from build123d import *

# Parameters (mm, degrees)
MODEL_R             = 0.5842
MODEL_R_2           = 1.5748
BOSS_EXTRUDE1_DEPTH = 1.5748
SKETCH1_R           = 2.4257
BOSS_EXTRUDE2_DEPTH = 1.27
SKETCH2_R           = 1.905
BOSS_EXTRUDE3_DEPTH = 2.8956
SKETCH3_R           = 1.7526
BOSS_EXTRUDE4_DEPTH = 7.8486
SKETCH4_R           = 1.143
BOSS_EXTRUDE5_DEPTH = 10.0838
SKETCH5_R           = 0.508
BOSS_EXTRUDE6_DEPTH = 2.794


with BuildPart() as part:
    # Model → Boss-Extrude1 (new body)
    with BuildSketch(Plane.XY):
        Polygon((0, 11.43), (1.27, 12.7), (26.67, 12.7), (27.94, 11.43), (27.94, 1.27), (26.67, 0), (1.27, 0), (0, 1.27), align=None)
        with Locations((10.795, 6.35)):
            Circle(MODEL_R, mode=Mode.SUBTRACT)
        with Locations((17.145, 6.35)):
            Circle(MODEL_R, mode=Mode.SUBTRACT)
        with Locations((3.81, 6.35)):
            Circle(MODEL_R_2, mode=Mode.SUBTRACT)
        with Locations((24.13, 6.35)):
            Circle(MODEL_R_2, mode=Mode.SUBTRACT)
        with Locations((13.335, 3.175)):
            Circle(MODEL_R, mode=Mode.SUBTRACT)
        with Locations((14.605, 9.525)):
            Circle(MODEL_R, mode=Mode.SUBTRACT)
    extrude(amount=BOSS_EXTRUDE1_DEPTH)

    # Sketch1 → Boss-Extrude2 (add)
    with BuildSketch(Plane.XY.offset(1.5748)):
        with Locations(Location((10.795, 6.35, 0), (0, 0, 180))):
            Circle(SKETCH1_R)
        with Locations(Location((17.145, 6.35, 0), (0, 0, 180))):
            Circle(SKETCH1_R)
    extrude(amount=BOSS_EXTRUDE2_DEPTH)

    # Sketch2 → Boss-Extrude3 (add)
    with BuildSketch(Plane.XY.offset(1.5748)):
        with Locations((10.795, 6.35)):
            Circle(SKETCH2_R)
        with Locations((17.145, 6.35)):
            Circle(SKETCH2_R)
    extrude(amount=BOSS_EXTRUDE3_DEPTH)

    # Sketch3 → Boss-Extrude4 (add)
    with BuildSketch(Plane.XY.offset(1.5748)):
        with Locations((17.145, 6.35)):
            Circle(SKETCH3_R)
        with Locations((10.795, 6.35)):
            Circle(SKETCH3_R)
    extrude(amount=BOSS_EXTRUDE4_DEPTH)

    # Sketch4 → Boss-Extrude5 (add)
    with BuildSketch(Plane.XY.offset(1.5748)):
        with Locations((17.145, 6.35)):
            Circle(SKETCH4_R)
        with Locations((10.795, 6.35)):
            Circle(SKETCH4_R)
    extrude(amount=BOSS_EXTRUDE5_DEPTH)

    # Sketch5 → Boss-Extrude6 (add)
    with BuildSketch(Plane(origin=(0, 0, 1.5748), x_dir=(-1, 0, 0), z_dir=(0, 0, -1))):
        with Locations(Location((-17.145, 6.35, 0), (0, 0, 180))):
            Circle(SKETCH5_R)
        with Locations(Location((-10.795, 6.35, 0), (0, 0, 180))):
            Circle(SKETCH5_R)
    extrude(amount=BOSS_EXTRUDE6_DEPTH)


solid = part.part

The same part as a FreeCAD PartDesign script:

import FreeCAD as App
import Part
import Sketcher
Q = App.Units.Quantity


def add_polygon(sketch, points):
    """Adds a closed chain of lines whose ends are joined by coincident constraints."""
    first, n = sketch.GeometryCount, len(points)
    for a, b in zip(points, points[1:] + points[:1]):
        sketch.addGeometry(Part.LineSegment(App.Vector(*a, 0), App.Vector(*b, 0)), False)
    for i in range(n):
        sketch.addConstraint(Sketcher.Constraint("Coincident", first + i, 2, first + (i + 1) % n, 1))

doc = App.newDocument("Part")
body = doc.addObject("PartDesign::Body", "Body")

# Sketch on XY plane
sketch1 = doc.addObject("Sketcher::SketchObject", "Sketch")
body.addObject(sketch1)
sketch1.AttachmentSupport = (doc.XY_Plane, [""])
sketch1.MapMode = "FlatFace"
add_polygon(sketch1, [(1.3, 12.7), (0, 11.4), (0, 1.3), (1.3, 0), (26.7, 0), (27.9, 1.3), (27.9, 11.4), (26.7, 12.7)])  # lines 0-7
sketch1.addGeometry(Part.Circle(App.Vector(24.1, 6.3, 0), App.Vector(0, 0, 1), 1.6), False)  # 8
sketch1.addGeometry(Part.Circle(App.Vector(17.1, 6.3, 0), App.Vector(0, 0, 1), 0.6), False)  # 9
sketch1.addGeometry(Part.Circle(App.Vector(13.3, 3.2, 0), App.Vector(0, 0, 1), 0.6), False)  # 10
sketch1.addGeometry(Part.Circle(App.Vector(10.8, 6.3, 0), App.Vector(0, 0, 1), 0.6), False)  # 11
sketch1.addGeometry(Part.Circle(App.Vector(3.8, 6.3, 0), App.Vector(0, 0, 1), 1.6), False)  # 12
sketch1.addGeometry(Part.Circle(App.Vector(14.6, 9.5, 0), App.Vector(0, 0, 1), 0.6), False)  # 13
sketch1.addConstraint(Sketcher.Constraint("Vertical", 1))
sketch1.addConstraint(Sketcher.Constraint("Horizontal", 3))
sketch1.addConstraint(Sketcher.Constraint("Vertical", 5))
sketch1.addConstraint(Sketcher.Constraint("Horizontal", 7))
sketch1.addConstraint(Sketcher.Constraint("Equal", 9, 10))
sketch1.addConstraint(Sketcher.Constraint("Equal", 10, 11))
sketch1.addConstraint(Sketcher.Constraint("Equal", 8, 12))
sketch1.addConstraint(Sketcher.Constraint("Equal", 11, 13))
sketch1.addConstraint(Sketcher.Constraint("PointOnObject", 0, 2, -2))
sketch1.addConstraint(Sketcher.Constraint("PointOnObject", 2, 2, -1))
sketch1.addConstraint(Sketcher.Constraint("Perpendicular", 0, 2))
sketch1.addConstraint(Sketcher.Constraint("Perpendicular", 2, 4))
sketch1.addConstraint(Sketcher.Constraint("Perpendicular", 4, 6))
sketch1.addConstraint(Sketcher.Constraint("Horizontal", 8, 3, 9, 3))
sketch1.addConstraint(Sketcher.Constraint("Horizontal", 9, 3, 11, 3))
sketch1.addConstraint(Sketcher.Constraint("Horizontal", 11, 3, 12, 3))
sketch1.addConstraint(Sketcher.Constraint("Horizontal", 1, 2, 4, 2))
sketch1.addConstraint(Sketcher.Constraint("Horizontal", 0, 2, 5, 2))
sketch1.addConstraint(Sketcher.Constraint("Vertical", 3, 2, 6, 2))
sketch1.addConstraint(Sketcher.Constraint("Vertical", 2, 2, 7, 2))
sketch1.addConstraint(Sketcher.Constraint("DistanceX", 3, 1, 3, 2, Q("1 in")))
sketch1.addConstraint(Sketcher.Constraint("Diameter", 8, Q("0.124 in")))
sketch1.addConstraint(Sketcher.Constraint("Diameter", 9, Q("0.046 in")))
sketch1.addConstraint(Sketcher.Constraint("DistanceY", 1, 2, 1, 1, Q("0.4 in")))
sketch1.addConstraint(Sketcher.Constraint("DistanceX", -1, 1, 4, 2, Q("1.1 in")))
sketch1.addConstraint(Sketcher.Constraint("DistanceX", 11, 3, 10, 3, Q("0.1 in")))
sketch1.addConstraint(Sketcher.Constraint("DistanceX", 12, 3, 8, 3, Q("0.8 in")))
sketch1.addConstraint(Sketcher.Constraint("DistanceX", 13, 3, 9, 3, Q("0.1 in")))
sketch1.addConstraint(Sketcher.Constraint("DistanceY", 12, 3, 0, 2, Q("0.2 in")))
sketch1.addConstraint(Sketcher.Constraint("DistanceX", 2, 2, 12, 3, Q("0.1 in")))
sketch1.addConstraint(Sketcher.Constraint("DistanceX", 10, 3, 9, 3, Q("0.15 in")))
sketch1.addConstraint(Sketcher.Constraint("DistanceY", 10, 3, 13, 3, Q("0.25 in")))
sketch1.addConstraint(Sketcher.Constraint("DistanceX", -1, 1, 9, 3, Q("0.675 in")))
sketch1.addConstraint(Sketcher.Constraint("DistanceY", -1, 1, 10, 3, Q("0.125 in")))
pad1 = doc.addObject("PartDesign::Pad", "Pad")
body.addObject(pad1)
pad1.Profile = sketch1
pad1.Length = Q("0.062 in")

# Sketch on XY plane
sketch2 = doc.addObject("Sketcher::SketchObject", "Sketch001")
body.addObject(sketch2)
sketch2.AttachmentSupport = (doc.XY_Plane, [""])
sketch2.MapMode = "FlatFace"
sketch2.AttachmentOffset = App.Placement(App.Vector(0, 0, 0.062 * 25.4), App.Rotation())
sketch2.addGeometry(Part.Circle(App.Vector(10.8, 6.3, 0), App.Vector(0, 0, 1), 2.4), False)
sketch2.addGeometry(Part.Circle(App.Vector(17.1, 6.3, 0), App.Vector(0, 0, 1), 2.4), False)
sketch2.addConstraint(Sketcher.Constraint("Equal", 0, 1))
sketch2.addConstraint(Sketcher.Constraint("Horizontal", 0, 3, 1, 3))
sketch2.addConstraint(Sketcher.Constraint("Diameter", 0, Q("0.191 in")))
sketch2.addConstraint(Sketcher.Constraint("DistanceY", -1, 1, 0, 3, Q("0.25 in")))
sketch2.addConstraint(Sketcher.Constraint("DistanceX", 0, 3, 1, 3, Q("0.25 in")))
sketch2.addConstraint(Sketcher.Constraint("DistanceX", -1, 1, 0, 3, Q("0.425 in")))
pad2 = doc.addObject("PartDesign::Pad", "Pad001")
body.addObject(pad2)
pad2.Profile = sketch2
pad2.Length = Q("0.05 in")

# Sketch on XY plane
sketch3 = doc.addObject("Sketcher::SketchObject", "Sketch002")
body.addObject(sketch3)
sketch3.AttachmentSupport = (doc.XY_Plane, [""])
sketch3.MapMode = "FlatFace"
sketch3.AttachmentOffset = App.Placement(App.Vector(0, 0, 0.062 * 25.4), App.Rotation())
sketch3.addGeometry(Part.Circle(App.Vector(10.8, 6.3, 0), App.Vector(0, 0, 1), 1.9), False)
sketch3.addGeometry(Part.Circle(App.Vector(17.1, 6.3, 0), App.Vector(0, 0, 1), 1.9), False)
sketch3.addConstraint(Sketcher.Constraint("Equal", 0, 1))
sketch3.addConstraint(Sketcher.Constraint("Horizontal", 0, 3, 1, 3))
sketch3.addConstraint(Sketcher.Constraint("Diameter", 0, Q("0.15 in")))
sketch3.addConstraint(Sketcher.Constraint("DistanceY", -1, 1, 0, 3, Q("0.25 in")))
sketch3.addConstraint(Sketcher.Constraint("DistanceX", 0, 3, 1, 3, Q("0.25 in")))
sketch3.addConstraint(Sketcher.Constraint("DistanceX", -1, 1, 0, 3, Q("0.425 in")))
pad3 = doc.addObject("PartDesign::Pad", "Pad002")
body.addObject(pad3)
pad3.Profile = sketch3
pad3.Length = Q("0.114 in")

# Sketch on XY plane
sketch4 = doc.addObject("Sketcher::SketchObject", "Sketch003")
body.addObject(sketch4)
sketch4.AttachmentSupport = (doc.XY_Plane, [""])
sketch4.MapMode = "FlatFace"
sketch4.AttachmentOffset = App.Placement(App.Vector(0, 0, 0.062 * 25.4), App.Rotation())
sketch4.addGeometry(Part.Circle(App.Vector(17.1, 6.3, 0), App.Vector(0, 0, 1), 1.8), False)
sketch4.addGeometry(Part.Circle(App.Vector(10.8, 6.3, 0), App.Vector(0, 0, 1), 1.8), False)
sketch4.addConstraint(Sketcher.Constraint("Equal", 0, 1))
sketch4.addConstraint(Sketcher.Constraint("Horizontal", 0, 3, 1, 3))
sketch4.addConstraint(Sketcher.Constraint("Diameter", 0, Q("0.138 in")))
sketch4.addConstraint(Sketcher.Constraint("DistanceY", -1, 1, 0, 3, Q("0.25 in")))
sketch4.addConstraint(Sketcher.Constraint("DistanceX", 1, 3, 0, 3, Q("0.25 in")))
sketch4.addConstraint(Sketcher.Constraint("DistanceX", -1, 1, 0, 3, Q("0.675 in")))
pad4 = doc.addObject("PartDesign::Pad", "Pad003")
body.addObject(pad4)
pad4.Profile = sketch4
pad4.Length = Q("0.309 in")

# Sketch on XY plane
sketch5 = doc.addObject("Sketcher::SketchObject", "Sketch004")
body.addObject(sketch5)
sketch5.AttachmentSupport = (doc.XY_Plane, [""])
sketch5.MapMode = "FlatFace"
sketch5.AttachmentOffset = App.Placement(App.Vector(0, 0, 0.062 * 25.4), App.Rotation())
sketch5.addGeometry(Part.Circle(App.Vector(17.1, 6.3, 0), App.Vector(0, 0, 1), 1.1), False)
sketch5.addGeometry(Part.Circle(App.Vector(10.8, 6.3, 0), App.Vector(0, 0, 1), 1.1), False)
sketch5.addConstraint(Sketcher.Constraint("Equal", 0, 1))
sketch5.addConstraint(Sketcher.Constraint("Horizontal", 0, 3, 1, 3))
sketch5.addConstraint(Sketcher.Constraint("Diameter", 0, Q("0.09 in")))
sketch5.addConstraint(Sketcher.Constraint("DistanceY", -1, 1, 0, 3, Q("0.25 in")))
sketch5.addConstraint(Sketcher.Constraint("DistanceX", 1, 3, 0, 3, Q("0.25 in")))
sketch5.addConstraint(Sketcher.Constraint("DistanceX", -1, 1, 0, 3, Q("0.675 in")))
pad5 = doc.addObject("PartDesign::Pad", "Pad004")
body.addObject(pad5)
pad5.Profile = sketch5
pad5.Length = Q("0.397 in")

# Sketch on XY plane
sketch6 = doc.addObject("Sketcher::SketchObject", "Sketch005")
body.addObject(sketch6)
sketch6.AttachmentSupport = (doc.XY_Plane, [""])
sketch6.MapMode = "FlatFace"
sketch6.AttachmentOffset = App.Placement(App.Vector(0, 0, 0.062 * 25.4), App.Rotation())
sketch6.addGeometry(Part.Circle(App.Vector(17.1, 6.3, 0), App.Vector(0, 0, 1), 0.5), False)
sketch6.addGeometry(Part.Circle(App.Vector(10.8, 6.3, 0), App.Vector(0, 0, 1), 0.5), False)
sketch6.addConstraint(Sketcher.Constraint("Equal", 0, 1))
sketch6.addConstraint(Sketcher.Constraint("Horizontal", 0, 3, 1, 3))
sketch6.addConstraint(Sketcher.Constraint("Diameter", 0, Q("0.04 in")))
sketch6.addConstraint(Sketcher.Constraint("DistanceY", -1, 1, 0, 3, Q("0.25 in")))
sketch6.addConstraint(Sketcher.Constraint("DistanceX", 1, 3, 0, 3, Q("0.25 in")))
sketch6.addConstraint(Sketcher.Constraint("DistanceX", -1, 1, 0, 3, Q("0.675 in")))
pad6 = doc.addObject("PartDesign::Pad", "Pad005")
body.addObject(pad6)
pad6.Profile = sketch6
pad6.Length = Q("0.11 in")
pad6.Reversed = True

doc.recompute()
